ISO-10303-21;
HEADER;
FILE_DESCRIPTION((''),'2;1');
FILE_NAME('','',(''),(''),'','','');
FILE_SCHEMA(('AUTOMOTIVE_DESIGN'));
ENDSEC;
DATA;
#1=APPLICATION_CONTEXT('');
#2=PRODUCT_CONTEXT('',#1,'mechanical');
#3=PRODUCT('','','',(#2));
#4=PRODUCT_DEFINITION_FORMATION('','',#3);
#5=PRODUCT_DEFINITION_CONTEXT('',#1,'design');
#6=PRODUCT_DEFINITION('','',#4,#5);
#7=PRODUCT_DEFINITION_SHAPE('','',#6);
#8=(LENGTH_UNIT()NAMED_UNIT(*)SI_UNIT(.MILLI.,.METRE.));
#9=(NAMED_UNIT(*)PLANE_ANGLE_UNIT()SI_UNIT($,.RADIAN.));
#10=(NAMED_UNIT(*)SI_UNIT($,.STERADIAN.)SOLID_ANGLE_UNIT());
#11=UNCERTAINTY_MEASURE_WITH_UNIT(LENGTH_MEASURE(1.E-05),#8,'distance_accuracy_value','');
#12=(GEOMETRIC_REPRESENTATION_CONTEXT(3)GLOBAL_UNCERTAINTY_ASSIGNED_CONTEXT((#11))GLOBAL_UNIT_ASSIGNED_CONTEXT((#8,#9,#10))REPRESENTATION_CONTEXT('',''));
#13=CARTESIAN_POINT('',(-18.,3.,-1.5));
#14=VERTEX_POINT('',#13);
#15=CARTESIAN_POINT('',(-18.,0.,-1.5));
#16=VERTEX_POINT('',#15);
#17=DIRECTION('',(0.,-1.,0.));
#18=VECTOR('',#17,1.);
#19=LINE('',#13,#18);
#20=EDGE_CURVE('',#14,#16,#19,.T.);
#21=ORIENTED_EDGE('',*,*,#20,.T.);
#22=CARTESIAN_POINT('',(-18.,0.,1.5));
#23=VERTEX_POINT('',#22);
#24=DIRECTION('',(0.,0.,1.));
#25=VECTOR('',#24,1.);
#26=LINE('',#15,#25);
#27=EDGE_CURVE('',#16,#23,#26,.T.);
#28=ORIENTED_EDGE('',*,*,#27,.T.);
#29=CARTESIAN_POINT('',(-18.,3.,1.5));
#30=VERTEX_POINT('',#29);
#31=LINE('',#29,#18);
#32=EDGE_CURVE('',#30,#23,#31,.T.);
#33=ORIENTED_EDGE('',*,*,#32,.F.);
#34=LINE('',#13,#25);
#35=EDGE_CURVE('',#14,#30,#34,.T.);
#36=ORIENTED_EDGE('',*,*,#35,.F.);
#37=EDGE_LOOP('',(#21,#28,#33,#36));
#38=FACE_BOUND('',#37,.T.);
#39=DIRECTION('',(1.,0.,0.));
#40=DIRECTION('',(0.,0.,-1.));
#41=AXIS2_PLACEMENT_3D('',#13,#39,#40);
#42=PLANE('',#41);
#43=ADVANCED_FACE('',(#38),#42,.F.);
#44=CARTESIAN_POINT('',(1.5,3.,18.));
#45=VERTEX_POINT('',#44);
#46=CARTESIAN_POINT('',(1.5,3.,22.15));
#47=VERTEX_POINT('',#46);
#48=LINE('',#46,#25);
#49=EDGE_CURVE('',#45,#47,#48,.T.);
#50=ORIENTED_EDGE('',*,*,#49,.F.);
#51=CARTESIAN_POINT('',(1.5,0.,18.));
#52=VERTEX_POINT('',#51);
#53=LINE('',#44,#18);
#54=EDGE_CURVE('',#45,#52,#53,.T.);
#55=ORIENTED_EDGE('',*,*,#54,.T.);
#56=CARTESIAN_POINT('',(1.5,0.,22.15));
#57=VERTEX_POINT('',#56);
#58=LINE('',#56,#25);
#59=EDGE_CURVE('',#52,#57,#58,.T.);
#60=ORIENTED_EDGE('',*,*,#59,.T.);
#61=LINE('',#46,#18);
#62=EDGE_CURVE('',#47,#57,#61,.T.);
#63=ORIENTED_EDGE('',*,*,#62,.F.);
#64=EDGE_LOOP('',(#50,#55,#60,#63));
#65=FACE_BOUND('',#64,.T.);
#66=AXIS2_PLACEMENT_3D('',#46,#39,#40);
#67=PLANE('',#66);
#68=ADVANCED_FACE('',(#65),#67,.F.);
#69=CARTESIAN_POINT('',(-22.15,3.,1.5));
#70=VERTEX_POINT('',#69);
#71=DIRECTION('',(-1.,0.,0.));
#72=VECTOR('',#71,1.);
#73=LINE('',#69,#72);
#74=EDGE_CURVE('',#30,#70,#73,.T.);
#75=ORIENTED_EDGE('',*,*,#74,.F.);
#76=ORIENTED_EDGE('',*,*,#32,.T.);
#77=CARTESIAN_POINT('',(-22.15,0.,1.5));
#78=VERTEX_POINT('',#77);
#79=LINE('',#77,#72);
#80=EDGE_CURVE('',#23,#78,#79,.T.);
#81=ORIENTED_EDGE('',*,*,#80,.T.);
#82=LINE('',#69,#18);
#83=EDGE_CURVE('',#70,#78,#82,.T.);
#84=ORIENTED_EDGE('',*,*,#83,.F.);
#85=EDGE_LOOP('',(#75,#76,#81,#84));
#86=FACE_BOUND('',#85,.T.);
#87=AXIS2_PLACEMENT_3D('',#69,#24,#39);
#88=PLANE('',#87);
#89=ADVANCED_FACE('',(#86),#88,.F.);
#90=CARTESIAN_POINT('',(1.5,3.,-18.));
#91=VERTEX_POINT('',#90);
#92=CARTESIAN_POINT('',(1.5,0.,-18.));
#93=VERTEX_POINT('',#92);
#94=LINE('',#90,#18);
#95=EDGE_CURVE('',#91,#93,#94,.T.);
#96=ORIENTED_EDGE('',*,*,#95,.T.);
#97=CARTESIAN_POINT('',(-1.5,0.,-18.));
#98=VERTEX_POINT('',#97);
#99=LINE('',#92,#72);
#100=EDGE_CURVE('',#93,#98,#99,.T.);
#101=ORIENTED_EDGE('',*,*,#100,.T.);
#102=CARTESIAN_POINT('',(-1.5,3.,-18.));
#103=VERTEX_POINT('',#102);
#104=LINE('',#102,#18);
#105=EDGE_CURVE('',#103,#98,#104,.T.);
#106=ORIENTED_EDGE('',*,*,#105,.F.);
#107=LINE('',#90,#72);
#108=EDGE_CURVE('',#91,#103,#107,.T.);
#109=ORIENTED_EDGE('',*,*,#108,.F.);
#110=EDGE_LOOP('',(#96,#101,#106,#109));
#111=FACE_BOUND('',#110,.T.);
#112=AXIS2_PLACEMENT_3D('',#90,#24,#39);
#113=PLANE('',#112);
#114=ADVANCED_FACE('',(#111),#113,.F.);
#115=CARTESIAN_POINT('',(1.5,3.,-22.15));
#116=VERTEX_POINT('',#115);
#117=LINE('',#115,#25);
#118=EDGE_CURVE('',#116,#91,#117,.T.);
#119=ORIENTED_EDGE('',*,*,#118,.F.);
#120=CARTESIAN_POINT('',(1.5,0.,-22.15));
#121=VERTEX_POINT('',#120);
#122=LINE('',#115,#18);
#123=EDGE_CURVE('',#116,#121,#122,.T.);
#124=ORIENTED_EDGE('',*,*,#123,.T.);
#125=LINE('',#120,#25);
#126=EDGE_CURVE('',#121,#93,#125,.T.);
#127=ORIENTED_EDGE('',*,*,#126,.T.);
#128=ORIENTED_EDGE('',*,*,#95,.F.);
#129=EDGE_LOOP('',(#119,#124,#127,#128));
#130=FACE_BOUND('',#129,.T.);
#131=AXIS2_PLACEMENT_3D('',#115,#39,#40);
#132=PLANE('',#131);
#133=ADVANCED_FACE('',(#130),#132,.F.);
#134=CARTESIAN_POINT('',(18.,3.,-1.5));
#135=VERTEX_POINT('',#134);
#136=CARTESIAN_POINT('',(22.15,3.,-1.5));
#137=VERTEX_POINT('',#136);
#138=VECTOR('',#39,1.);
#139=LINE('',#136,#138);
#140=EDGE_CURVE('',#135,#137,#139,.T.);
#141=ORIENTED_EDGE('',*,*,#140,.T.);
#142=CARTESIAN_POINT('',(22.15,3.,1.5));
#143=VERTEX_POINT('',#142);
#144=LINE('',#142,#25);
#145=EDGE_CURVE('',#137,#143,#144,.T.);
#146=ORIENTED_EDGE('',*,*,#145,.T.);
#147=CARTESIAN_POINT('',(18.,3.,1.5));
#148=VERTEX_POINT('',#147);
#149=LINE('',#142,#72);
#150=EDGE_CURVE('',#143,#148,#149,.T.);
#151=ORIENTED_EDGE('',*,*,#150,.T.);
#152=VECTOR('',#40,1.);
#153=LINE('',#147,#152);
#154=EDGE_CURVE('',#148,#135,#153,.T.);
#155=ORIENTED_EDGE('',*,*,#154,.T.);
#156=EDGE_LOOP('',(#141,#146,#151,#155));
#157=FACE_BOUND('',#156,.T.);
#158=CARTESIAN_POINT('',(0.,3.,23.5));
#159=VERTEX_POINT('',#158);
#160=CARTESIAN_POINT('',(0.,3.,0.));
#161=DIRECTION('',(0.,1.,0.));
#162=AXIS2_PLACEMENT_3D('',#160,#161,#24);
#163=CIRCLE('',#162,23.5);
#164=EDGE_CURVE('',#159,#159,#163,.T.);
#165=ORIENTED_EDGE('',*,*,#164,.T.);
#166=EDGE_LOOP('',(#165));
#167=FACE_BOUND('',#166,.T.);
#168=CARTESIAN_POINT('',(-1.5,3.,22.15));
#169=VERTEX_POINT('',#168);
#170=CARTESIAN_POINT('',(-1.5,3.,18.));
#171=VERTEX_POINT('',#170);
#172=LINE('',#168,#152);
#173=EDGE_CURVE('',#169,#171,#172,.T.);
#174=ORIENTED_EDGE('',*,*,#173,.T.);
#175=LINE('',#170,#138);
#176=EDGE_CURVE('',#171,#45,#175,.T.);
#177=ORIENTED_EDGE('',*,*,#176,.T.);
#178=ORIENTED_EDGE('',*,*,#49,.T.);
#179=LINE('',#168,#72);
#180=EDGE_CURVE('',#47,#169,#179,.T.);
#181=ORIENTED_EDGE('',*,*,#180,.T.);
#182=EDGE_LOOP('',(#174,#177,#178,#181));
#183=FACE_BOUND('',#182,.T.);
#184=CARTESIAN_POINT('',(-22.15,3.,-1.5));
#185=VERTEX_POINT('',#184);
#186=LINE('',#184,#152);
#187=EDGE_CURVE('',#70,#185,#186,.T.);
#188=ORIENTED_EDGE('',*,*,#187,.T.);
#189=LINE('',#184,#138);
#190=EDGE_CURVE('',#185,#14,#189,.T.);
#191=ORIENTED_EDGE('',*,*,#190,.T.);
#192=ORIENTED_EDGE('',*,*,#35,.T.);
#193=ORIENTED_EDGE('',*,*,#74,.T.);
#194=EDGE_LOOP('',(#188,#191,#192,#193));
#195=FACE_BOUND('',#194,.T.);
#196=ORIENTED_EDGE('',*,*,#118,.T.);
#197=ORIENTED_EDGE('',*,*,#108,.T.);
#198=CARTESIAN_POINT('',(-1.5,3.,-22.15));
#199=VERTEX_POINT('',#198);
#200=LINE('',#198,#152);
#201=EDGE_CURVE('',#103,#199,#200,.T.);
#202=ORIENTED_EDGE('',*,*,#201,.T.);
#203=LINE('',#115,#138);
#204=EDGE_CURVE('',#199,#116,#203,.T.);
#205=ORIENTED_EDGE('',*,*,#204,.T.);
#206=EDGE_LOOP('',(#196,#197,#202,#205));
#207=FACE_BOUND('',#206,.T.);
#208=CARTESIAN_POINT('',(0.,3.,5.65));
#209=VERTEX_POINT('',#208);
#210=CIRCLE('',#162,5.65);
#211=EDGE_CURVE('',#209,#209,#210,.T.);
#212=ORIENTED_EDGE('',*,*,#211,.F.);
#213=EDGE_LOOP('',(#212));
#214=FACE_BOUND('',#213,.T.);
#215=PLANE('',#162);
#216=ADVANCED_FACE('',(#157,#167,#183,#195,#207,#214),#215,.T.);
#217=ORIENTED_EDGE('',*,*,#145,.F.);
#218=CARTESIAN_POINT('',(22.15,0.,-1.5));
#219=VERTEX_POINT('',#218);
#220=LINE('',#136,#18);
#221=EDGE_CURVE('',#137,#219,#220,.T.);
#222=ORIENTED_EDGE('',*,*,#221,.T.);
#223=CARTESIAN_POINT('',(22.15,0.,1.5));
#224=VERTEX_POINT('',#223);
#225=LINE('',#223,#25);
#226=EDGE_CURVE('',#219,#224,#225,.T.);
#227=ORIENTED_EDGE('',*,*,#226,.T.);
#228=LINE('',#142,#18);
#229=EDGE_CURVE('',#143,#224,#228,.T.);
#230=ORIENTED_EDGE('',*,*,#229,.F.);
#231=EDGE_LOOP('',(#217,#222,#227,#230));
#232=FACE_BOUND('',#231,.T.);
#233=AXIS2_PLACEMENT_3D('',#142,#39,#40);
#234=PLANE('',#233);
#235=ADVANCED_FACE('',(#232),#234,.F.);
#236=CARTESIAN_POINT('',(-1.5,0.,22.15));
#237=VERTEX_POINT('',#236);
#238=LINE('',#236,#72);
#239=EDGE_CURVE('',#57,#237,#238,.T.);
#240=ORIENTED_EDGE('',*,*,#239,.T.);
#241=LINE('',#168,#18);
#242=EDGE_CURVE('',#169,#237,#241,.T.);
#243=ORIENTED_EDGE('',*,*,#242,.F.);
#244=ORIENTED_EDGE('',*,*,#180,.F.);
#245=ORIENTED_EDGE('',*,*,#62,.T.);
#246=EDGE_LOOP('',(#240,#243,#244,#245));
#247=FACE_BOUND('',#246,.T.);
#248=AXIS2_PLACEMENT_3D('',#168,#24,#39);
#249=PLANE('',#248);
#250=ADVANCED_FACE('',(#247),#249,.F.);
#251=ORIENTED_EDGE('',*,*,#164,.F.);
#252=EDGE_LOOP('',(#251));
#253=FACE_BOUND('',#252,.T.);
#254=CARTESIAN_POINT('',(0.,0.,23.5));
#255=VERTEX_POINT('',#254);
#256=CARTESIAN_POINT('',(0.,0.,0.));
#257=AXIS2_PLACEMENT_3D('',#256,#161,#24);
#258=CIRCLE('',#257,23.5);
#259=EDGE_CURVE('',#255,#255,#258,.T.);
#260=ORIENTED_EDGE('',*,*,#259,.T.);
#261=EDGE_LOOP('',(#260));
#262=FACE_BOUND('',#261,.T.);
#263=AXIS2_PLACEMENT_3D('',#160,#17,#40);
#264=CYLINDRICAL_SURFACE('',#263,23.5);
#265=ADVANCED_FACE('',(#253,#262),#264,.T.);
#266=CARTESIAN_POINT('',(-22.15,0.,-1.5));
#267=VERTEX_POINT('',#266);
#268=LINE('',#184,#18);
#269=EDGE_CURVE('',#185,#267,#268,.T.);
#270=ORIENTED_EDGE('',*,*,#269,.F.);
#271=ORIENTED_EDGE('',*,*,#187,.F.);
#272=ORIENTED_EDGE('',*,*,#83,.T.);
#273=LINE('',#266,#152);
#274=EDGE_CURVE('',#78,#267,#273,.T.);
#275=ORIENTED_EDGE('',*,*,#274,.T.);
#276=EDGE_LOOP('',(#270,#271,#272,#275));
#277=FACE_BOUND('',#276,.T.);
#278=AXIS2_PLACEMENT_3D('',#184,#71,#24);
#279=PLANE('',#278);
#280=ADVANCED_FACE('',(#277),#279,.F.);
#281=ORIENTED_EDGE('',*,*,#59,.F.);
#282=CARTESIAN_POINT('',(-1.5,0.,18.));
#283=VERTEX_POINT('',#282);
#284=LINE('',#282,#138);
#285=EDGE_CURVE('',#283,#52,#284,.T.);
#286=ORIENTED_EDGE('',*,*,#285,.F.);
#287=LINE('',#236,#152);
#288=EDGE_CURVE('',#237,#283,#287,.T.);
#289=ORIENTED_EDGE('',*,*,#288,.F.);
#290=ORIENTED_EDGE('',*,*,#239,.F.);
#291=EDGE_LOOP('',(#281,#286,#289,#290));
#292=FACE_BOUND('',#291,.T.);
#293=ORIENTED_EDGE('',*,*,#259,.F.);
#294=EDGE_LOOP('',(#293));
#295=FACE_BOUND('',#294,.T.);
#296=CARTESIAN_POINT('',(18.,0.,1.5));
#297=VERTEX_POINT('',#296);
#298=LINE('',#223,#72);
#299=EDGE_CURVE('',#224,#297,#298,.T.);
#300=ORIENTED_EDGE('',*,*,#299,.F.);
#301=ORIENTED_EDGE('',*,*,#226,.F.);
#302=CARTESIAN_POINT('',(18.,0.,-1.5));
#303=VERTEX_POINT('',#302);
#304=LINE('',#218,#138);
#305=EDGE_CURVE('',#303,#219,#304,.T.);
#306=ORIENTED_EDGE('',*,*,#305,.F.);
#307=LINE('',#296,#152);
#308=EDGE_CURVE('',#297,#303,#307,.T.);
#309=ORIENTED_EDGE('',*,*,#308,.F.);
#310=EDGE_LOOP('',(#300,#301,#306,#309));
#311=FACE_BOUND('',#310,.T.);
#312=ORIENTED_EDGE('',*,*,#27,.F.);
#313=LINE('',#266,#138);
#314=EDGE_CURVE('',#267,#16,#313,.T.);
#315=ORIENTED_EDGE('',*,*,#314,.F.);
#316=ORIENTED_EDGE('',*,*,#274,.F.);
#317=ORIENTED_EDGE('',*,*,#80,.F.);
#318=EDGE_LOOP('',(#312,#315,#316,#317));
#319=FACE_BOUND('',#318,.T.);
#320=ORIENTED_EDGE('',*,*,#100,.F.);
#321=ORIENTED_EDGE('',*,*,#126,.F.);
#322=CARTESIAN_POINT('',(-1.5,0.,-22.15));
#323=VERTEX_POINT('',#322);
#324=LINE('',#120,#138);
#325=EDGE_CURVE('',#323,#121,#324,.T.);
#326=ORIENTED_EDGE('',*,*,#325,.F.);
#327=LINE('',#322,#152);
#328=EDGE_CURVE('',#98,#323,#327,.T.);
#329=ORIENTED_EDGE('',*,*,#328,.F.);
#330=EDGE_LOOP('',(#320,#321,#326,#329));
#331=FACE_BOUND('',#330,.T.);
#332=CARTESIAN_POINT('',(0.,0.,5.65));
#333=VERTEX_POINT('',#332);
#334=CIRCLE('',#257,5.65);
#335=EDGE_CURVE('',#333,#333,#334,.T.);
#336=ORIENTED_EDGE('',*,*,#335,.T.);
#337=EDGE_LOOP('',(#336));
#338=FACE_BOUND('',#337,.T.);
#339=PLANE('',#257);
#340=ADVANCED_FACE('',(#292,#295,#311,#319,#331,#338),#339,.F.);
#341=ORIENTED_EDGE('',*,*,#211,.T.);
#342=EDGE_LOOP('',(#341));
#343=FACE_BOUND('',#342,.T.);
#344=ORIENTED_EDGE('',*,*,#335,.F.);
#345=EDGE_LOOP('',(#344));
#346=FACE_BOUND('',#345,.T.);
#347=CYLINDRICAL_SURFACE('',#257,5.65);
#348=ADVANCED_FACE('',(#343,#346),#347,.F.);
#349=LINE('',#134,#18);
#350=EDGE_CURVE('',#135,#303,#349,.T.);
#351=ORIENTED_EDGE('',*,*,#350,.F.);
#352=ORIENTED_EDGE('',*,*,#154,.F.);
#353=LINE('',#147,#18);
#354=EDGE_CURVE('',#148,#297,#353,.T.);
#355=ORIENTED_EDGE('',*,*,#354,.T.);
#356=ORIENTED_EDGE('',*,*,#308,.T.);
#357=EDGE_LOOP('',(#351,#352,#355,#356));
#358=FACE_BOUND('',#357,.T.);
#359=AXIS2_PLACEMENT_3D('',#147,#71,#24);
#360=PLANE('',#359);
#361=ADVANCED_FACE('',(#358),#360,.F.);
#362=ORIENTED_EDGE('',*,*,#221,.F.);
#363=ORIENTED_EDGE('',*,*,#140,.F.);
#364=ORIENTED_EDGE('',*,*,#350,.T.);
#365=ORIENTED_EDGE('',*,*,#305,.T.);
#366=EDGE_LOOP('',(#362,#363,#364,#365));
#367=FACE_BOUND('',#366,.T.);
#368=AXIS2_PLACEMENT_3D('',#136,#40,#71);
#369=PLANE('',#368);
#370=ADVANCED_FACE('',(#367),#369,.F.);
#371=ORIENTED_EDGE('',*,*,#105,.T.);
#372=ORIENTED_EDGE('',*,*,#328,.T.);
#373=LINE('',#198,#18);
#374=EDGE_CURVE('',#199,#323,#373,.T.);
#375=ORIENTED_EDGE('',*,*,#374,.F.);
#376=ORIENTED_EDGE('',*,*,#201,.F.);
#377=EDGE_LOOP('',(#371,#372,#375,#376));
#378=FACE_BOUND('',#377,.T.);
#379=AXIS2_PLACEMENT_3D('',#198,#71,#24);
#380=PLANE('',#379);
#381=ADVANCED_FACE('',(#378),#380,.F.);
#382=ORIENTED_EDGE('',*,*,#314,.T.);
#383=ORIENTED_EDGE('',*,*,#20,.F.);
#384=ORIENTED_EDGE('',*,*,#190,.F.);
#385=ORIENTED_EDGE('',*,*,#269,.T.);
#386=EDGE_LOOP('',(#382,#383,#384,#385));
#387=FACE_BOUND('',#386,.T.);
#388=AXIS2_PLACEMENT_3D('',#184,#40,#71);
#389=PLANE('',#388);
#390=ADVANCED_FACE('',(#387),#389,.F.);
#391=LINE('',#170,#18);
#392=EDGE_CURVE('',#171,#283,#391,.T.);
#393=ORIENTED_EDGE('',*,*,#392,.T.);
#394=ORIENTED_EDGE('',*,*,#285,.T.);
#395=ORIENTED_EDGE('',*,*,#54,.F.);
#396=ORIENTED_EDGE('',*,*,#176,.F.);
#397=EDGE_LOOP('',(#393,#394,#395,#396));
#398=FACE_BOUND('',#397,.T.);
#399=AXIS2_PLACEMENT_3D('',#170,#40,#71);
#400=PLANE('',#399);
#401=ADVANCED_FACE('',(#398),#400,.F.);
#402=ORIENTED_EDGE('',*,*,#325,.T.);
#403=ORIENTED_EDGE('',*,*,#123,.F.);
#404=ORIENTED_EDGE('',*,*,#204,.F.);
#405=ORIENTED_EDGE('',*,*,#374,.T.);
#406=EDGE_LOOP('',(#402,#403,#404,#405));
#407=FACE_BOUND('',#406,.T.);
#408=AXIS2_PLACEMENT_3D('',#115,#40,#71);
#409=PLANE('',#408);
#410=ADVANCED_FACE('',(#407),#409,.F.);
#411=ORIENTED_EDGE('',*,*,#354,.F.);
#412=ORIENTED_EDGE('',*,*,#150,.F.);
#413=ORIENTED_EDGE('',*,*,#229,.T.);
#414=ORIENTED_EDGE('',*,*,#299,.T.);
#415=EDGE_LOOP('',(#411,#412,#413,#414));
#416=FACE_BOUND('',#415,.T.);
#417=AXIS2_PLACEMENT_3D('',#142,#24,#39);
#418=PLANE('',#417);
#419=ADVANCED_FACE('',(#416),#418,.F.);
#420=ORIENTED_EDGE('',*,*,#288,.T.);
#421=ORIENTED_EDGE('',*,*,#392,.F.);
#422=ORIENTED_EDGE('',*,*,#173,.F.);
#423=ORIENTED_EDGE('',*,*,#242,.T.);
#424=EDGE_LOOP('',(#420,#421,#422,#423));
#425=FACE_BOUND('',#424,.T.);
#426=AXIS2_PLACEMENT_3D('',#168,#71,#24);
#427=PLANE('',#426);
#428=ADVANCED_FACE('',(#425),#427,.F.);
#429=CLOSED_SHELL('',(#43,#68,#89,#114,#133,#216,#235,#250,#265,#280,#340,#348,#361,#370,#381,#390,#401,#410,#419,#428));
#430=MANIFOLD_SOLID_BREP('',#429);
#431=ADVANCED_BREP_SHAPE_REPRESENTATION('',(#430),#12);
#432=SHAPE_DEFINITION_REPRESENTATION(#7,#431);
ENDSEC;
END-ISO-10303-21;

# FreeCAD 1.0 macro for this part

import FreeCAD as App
import Part
import Sketcher
from FreeCAD import Vector
Q = App.Units.Quantity


def add_polygon(sketch, points):
    """Adds a closed chain of lines whose ends are joined by coincident constraints."""
    first, n = sketch.GeometryCount, len(points)
    for a, b in zip(points, points[1:] + points[:1]):
        sketch.addGeometry(Part.LineSegment(App.Vector(*a, 0), App.Vector(*b, 0)), False)
    for i in range(n):
        sketch.addConstraint(Sketcher.Constraint("Coincident", first + i, 2, first + (i + 1) % n, 1))

doc = App.newDocument("Part")
body = doc.addObject("PartDesign::Body", "Body")

sketch1 = body.newObject("Sketcher::SketchObject", "Sketch")
sketch1.AttachmentSupport = (doc.getObject("XZ_Plane"), [""])
sketch1.MapMode = "FlatFace"
sketch1.addGeometry(Part.Circle(Vector(0, 0, 0), Vector(0, 0, 1), 24), False)
sketch1.addConstraint([
    Sketcher.Constraint("Coincident", 0, 3, -1, 1),
    Sketcher.Constraint("Diameter", 0, Q("47 mm")),
])
pad1 = body.newObject("PartDesign::Pad", "Pad")
pad1.Profile = sketch1
pad1.Length = 3
pad1.Reversed = True

sketch2 = body.newObject("Sketcher::SketchObject", "Sketch001")
sketch2.AttachmentSupport = (doc.getObject("XZ_Plane"), [""])
sketch2.MapMode = "FlatFace"
sketch2.AttachmentOffset = App.Placement(Vector(0, 0, -3), App.Rotation())
sketch2.addGeometry(Part.Circle(Vector(0, 0, 0), Vector(0, 0, 1), 6), False)
sketch2.addConstraint([
    Sketcher.Constraint("Coincident", 0, 3, -1, 1),
    Sketcher.Constraint("Diameter", 0, Q("11.3 mm")),
])
pocket1 = body.newObject("PartDesign::Pocket", "Pocket")
pocket1.Profile = sketch2
pocket1.Length = 3
pocket1.Reversed = True

sketch3 = body.newObject("Sketcher::SketchObject", "Sketch002")
sketch3.AttachmentSupport = (doc.getObject("XZ_Plane"), [""])
sketch3.MapMode = "FlatFace"
add_polygon(sketch3, [(18, 1.5), (18, -1.5), (22.1, -1.5), (22.1, 1.5)])
add_polygon(sketch3, [(-1.5, 22.1), (-1.5, 18), (1.5, 18), (1.5, 22.1)])
add_polygon(sketch3, [(-1.5, -18), (-1.5, -22.1), (1.5, -22.1), (1.5, -18)])
add_polygon(sketch3, [(-22.1, 1.5), (-22.1, -1.5), (-18, -1.5), (-18, 1.5)])
sketch3.addConstraint([
    Sketcher.Constraint("Vertical", 0),
    Sketcher.Constraint("Horizontal", 1),
    Sketcher.Constraint("Vertical", 2),
    Sketcher.Constraint("Horizontal", 3),
    Sketcher.Constraint("Vertical", 4),
    Sketcher.Constraint("Horizontal", 5),
    Sketcher.Constraint("Vertical", 6),
    Sketcher.Constraint("Horizontal", 7),
    Sketcher.Constraint("Vertical", 8),
    Sketcher.Constraint("Horizontal", 9),
    Sketcher.Constraint("Vertical", 10),
    Sketcher.Constraint("Horizontal", 11),
    Sketcher.Constraint("Vertical", 12),
    Sketcher.Constraint("Horizontal", 13),
    Sketcher.Constraint("Vertical", 14),
    Sketcher.Constraint("Horizontal", 15),
    Sketcher.Constraint("Symmetric", 6, 2, 8, 2, -1, 1),
    Sketcher.Constraint("Symmetric", 4, 2, 10, 2, -1, 1),
    Sketcher.Constraint("Symmetric", 2, 2, 12, 2, -1, 1),
    Sketcher.Constraint("Symmetric", 0, 2, 14, 2, -1, 1),
    Sketcher.Constraint("Horizontal", 1, 2, 12, 2),
    Sketcher.Constraint("Vertical", 7, 2, 8, 2),
    Sketcher.Constraint("Equal", 11, 0),
    Sketcher.Constraint("Equal", 15, 4),
    Sketcher.Constraint("DistanceX", 5, 1, 5, 2, Q("3 mm")),
    Sketcher.Constraint("DistanceX", -1, 1, 0, 2, Q("18 mm")),
    Sketcher.Constraint("DistanceY", -1, 1, 4, 2, Q("18 mm")),
    Sketcher.Constraint("DistanceX", 1, 1, 1, 2, Q("4.15 mm")),
])
pocket2 = body.newObject("PartDesign::Pocket", "Pocket001")
pocket2.Profile = sketch3
pocket2.Length = 3

doc.recompute()
